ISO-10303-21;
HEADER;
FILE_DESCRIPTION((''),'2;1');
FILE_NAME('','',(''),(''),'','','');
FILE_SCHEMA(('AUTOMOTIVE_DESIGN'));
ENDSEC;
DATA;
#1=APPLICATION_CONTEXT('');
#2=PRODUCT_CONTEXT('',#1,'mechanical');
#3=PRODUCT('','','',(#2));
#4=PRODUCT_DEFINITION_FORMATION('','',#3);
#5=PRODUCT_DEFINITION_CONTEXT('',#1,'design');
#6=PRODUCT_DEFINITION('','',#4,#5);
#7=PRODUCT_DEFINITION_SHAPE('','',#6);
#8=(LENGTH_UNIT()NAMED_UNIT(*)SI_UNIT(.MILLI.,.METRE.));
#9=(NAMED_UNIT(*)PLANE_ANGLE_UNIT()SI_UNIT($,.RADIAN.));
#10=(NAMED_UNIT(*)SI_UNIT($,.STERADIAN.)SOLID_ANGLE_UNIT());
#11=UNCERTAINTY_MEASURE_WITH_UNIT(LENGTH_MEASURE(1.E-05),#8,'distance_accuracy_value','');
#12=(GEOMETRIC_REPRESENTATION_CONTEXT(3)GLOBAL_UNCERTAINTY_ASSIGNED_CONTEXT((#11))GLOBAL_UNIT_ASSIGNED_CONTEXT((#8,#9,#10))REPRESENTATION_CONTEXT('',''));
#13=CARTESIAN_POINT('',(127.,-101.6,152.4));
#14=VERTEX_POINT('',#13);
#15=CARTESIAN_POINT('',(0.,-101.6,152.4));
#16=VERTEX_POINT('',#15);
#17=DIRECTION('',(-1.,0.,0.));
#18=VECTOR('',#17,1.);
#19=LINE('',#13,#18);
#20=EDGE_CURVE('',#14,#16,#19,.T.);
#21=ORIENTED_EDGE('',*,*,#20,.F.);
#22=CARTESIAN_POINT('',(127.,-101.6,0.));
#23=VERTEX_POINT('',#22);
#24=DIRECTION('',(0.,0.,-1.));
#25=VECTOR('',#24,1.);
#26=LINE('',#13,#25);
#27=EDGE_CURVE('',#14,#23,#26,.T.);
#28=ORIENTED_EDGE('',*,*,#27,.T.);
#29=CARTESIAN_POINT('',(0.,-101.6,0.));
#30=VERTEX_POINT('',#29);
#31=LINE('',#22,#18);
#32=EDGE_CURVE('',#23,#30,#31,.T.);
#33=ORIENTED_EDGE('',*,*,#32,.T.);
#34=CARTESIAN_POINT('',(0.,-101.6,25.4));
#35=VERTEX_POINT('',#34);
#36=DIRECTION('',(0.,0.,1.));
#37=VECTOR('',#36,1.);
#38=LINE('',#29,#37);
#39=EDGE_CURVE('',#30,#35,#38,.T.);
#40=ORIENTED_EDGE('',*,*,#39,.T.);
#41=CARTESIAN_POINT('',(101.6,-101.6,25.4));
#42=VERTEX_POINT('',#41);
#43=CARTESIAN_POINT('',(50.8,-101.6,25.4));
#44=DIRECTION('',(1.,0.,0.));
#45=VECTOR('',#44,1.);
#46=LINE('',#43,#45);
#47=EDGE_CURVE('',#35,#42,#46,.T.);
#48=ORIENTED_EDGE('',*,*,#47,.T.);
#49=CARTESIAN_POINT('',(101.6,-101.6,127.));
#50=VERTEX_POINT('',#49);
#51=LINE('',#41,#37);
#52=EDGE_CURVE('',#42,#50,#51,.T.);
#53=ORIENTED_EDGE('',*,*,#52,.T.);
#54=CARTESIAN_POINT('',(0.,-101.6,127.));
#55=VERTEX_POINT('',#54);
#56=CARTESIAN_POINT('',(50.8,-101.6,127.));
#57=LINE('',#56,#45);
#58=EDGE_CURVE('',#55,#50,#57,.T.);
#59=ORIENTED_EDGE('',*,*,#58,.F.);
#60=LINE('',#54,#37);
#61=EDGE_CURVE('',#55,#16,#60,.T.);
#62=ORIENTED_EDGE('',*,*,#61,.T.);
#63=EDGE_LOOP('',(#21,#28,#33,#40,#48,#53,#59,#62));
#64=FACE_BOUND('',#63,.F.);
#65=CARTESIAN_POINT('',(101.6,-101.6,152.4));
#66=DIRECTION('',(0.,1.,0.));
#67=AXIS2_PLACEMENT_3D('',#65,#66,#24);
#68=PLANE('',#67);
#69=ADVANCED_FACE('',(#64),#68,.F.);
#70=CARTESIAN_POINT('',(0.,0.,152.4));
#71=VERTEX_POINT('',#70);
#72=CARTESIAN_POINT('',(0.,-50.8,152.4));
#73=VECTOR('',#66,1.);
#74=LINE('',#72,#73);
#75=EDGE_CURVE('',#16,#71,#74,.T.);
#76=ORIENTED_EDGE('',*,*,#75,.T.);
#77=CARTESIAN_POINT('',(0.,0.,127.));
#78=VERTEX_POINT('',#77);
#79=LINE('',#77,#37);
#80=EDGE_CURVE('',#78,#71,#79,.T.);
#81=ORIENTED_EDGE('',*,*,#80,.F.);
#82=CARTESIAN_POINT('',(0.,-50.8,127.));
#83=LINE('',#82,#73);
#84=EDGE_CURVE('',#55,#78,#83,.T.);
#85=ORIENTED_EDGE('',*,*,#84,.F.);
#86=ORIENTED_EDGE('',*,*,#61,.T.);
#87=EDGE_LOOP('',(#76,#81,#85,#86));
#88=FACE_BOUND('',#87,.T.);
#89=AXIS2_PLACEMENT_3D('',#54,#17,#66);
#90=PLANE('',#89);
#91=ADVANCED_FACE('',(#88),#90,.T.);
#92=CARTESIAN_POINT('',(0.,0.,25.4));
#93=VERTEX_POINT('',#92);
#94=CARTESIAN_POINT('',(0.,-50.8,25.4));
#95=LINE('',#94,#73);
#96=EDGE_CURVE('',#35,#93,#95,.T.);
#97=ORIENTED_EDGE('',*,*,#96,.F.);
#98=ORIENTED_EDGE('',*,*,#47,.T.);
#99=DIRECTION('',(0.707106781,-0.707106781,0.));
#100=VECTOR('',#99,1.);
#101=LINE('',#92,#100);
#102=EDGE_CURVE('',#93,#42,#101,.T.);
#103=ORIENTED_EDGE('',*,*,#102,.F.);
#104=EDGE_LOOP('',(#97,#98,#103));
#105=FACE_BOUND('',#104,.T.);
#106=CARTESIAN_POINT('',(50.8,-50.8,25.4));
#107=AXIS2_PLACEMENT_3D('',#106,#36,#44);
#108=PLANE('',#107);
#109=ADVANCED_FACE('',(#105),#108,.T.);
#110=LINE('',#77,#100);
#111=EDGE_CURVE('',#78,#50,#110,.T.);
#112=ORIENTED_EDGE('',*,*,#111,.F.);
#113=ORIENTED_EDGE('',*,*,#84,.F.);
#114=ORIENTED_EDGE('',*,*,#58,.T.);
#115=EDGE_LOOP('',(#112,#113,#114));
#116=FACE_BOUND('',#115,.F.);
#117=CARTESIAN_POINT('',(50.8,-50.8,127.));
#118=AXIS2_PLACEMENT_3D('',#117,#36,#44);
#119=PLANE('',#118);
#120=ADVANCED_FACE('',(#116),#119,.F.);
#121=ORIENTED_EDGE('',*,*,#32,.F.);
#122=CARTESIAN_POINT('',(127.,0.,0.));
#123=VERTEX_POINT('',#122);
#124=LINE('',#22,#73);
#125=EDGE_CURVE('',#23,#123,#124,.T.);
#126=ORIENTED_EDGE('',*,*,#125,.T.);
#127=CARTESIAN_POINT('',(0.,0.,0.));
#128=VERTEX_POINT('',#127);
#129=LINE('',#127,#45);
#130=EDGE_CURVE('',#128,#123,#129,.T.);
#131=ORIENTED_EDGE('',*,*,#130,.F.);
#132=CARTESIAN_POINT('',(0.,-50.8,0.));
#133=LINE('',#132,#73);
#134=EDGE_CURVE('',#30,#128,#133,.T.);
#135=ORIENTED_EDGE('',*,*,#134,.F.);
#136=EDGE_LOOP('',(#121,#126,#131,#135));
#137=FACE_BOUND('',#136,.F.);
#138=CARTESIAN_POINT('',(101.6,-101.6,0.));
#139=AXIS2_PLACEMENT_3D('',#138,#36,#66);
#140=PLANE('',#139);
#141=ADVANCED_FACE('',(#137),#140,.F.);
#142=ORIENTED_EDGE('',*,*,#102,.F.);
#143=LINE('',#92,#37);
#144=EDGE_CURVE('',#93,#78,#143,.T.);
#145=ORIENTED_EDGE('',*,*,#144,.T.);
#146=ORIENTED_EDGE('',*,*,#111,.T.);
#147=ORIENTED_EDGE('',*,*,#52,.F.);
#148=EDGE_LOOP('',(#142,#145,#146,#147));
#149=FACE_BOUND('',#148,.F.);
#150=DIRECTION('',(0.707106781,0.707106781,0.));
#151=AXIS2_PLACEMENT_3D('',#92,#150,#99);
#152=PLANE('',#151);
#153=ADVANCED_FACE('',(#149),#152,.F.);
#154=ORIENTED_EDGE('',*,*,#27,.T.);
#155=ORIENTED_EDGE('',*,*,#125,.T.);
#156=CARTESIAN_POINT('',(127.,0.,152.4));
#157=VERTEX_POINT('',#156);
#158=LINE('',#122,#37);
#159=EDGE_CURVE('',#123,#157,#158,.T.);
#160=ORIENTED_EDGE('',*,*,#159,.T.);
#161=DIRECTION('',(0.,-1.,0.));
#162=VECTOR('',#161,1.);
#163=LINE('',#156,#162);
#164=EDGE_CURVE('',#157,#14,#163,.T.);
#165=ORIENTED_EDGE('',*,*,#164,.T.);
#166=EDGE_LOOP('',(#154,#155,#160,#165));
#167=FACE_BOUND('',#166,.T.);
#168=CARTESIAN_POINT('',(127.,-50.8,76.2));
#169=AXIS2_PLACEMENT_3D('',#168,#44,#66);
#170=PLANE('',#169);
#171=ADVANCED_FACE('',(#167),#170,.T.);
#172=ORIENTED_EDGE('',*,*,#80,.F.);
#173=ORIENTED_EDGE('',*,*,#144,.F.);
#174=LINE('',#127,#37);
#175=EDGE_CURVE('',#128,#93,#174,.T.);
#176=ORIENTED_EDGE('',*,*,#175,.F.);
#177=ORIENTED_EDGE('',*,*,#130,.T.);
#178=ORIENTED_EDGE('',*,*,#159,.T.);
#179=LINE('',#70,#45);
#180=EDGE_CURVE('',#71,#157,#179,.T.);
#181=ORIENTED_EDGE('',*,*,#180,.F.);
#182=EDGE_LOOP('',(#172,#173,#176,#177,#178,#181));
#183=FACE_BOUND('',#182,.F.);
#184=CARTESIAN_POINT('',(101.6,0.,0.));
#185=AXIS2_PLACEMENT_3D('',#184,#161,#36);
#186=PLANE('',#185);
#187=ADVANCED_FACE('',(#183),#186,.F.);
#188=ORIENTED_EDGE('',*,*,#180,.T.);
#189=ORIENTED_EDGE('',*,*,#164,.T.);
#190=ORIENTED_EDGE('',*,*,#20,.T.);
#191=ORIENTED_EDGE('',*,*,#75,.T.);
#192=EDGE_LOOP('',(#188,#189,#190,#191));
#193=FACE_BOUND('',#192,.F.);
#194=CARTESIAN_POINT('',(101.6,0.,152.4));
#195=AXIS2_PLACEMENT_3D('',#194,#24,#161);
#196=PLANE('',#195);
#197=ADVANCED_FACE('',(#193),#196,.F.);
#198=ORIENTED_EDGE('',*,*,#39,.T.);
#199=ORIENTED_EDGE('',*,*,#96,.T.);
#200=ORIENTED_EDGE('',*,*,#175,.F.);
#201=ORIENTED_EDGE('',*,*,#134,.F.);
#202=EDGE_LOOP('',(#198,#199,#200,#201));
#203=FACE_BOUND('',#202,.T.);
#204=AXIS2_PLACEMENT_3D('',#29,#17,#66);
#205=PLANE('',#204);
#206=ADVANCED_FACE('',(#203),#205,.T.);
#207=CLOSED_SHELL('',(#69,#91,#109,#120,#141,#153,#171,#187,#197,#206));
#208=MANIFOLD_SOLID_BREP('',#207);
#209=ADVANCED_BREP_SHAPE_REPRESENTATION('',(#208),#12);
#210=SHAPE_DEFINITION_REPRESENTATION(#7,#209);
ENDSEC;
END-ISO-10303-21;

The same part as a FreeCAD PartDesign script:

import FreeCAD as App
import Part
import Sketcher
Q = App.Units.Quantity

doc = App.newDocument("Part")
body = doc.addObject("PartDesign::Body", "Body")

sketch1 = doc.addObject("Sketcher::SketchObject", "Sketch")
body.addObject(sketch1)
sketch1.AttachmentSupport = (doc.XY_Plane, [""])
sketch1.MapMode = "FlatFace"
sketch1.addGeometry([
    Part.LineSegment(App.Vector(0, 0, 0), App.Vector(0, -101.6, 0)),
    Part.LineSegment(App.Vector(0, -101.6, 0), App.Vector(101.6, -101.6, 0)),
    Part.LineSegment(App.Vector(101.6, -101.6, 0), App.Vector(101.6, 0, 0)),
    Part.LineSegment(App.Vector(101.6, 0, 0), App.Vector(0, 0, 0)),
], False)
sketch1.addConstraint([
    Sketcher.Constraint("Coincident", 0, 2, 1, 1),
    Sketcher.Constraint("Coincident", 1, 2, 2, 1),
    Sketcher.Constraint("Coincident", 2, 2, 3, 1),
    Sketcher.Constraint("Coincident", 3, 2, 0, 1),
    Sketcher.Constraint("Vertical", 0),
    Sketcher.Constraint("Horizontal", 1),
    Sketcher.Constraint("Vertical", 2),
    Sketcher.Constraint("Horizontal", 3),
    Sketcher.Constraint("Coincident", 3, 2, -1, 1),
    Sketcher.Constraint("Equal", 3, 0),
    Sketcher.Constraint("DistanceX", 1, 1, 1, 2, Q("4 in")),
])
pad1 = doc.addObject("PartDesign::Pad", "Pad")
body.addObject(pad1)
pad1.Profile = sketch1
pad1.Length = Q("1 in")

sketch2 = doc.addObject("Sketcher::SketchObject", "Sketch001")
body.addObject(sketch2)
sketch2.AttachmentSupport = (doc.XY_Plane, [""])
sketch2.MapMode = "FlatFace"
sketch2.AttachmentOffset = App.Placement(App.Vector(0, 0, 1 * 25.4), App.Rotation())
sketch2.addGeometry([
    Part.LineSegment(App.Vector(101.6, 0, 0), App.Vector(0, 0, 0)),
    Part.LineSegment(App.Vector(0, 0, 0), App.Vector(101.6, -101.6, 0)),
    Part.LineSegment(App.Vector(101.6, -101.6, 0), App.Vector(101.6, 0, 0)),
], False)
sketch2.addConstraint([
    Sketcher.Constraint("Coincident", 0, 2, 1, 1),
    Sketcher.Constraint("Coincident", 1, 2, 2, 1),
    Sketcher.Constraint("Coincident", 2, 2, 0, 1),
    Sketcher.Constraint("Horizontal", 0),
    Sketcher.Constraint("Vertical", 2),
    Sketcher.Constraint("Coincident", 0, 2, -1, 1),
    Sketcher.Constraint("Equal", 0, 2),
    Sketcher.Constraint("DistanceX", 0, 2, 0, 1, Q("4 in")),
])
pad2 = doc.addObject("PartDesign::Pad", "Pad001")
body.addObject(pad2)
pad2.Profile = sketch2
pad2.Length = Q("4 in")

sketch3 = doc.addObject("Sketcher::SketchObject", "Sketch002")
body.addObject(sketch3)
sketch3.AttachmentSupport = (doc.XY_Plane, [""])
sketch3.MapMode = "FlatFace"
sketch3.AttachmentOffset = App.Placement(App.Vector(0, 0, 5 * 25.4), App.Rotation())
sketch3.addGeometry([
    Part.LineSegment(App.Vector(0, 0, 0), App.Vector(0, -101.6, 0)),
    Part.LineSegment(App.Vector(0, -101.6, 0), App.Vector(101.6, -101.6, 0)),
    Part.LineSegment(App.Vector(101.6, -101.6, 0), App.Vector(101.6, 0, 0)),
    Part.LineSegment(App.Vector(101.6, 0, 0), App.Vector(0, 0, 0)),
], False)
sketch3.addConstraint([
    Sketcher.Constraint("Coincident", 0, 2, 1, 1),
    Sketcher.Constraint("Coincident", 1, 2, 2, 1),
    Sketcher.Constraint("Coincident", 2, 2, 3, 1),
    Sketcher.Constraint("Coincident", 3, 2, 0, 1),
    Sketcher.Constraint("Vertical", 0),
    Sketcher.Constraint("Horizontal", 1),
    Sketcher.Constraint("Vertical", 2),
    Sketcher.Constraint("Horizontal", 3),
    Sketcher.Constraint("Coincident", 3, 2, -1, 1),
    Sketcher.Constraint("Equal", 3, 0),
    Sketcher.Constraint("DistanceX", 1, 1, 1, 2, Q("4 in")),
])
pad3 = doc.addObject("PartDesign::Pad", "Pad002")
body.addObject(pad3)
pad3.Profile = sketch3
pad3.Length = Q("1 in")

sketch4 = doc.addObject("Sketcher::SketchObject", "Sketch003")
body.addObject(sketch4)
sketch4.AttachmentSupport = (doc.YZ_Plane, [""])
sketch4.MapMode = "FlatFace"
sketch4.AttachmentOffset = App.Placement(App.Vector(0, 0, 4 * 25.4), App.Rotation())
sketch4.addGeometry([
    Part.LineSegment(App.Vector(-101.6, 0, 0), App.Vector(0, 0, 0)),
    Part.LineSegment(App.Vector(0, 0, 0), App.Vector(0, 152.4, 0)),
    Part.LineSegment(App.Vector(0, 152.4, 0), App.Vector(-101.6, 152.4, 0)),
    Part.LineSegment(App.Vector(-101.6, 152.4, 0), App.Vector(-101.6, 0, 0)),
], False)
sketch4.addConstraint([
    Sketcher.Constraint("Coincident", 0, 2, 1, 1),
    Sketcher.Constraint("Coincident", 1, 2, 2, 1),
    Sketcher.Constraint("Coincident", 2, 2, 3, 1),
    Sketcher.Constraint("Coincident", 3, 2, 0, 1),
    Sketcher.Constraint("Horizontal", 0),
    Sketcher.Constraint("Vertical", 1),
    Sketcher.Constraint("Horizontal", 2),
    Sketcher.Constraint("Vertical", 3),
    Sketcher.Constraint("Coincident", 0, 2, -1, 1),
    Sketcher.Constraint("DistanceX", 0, 1, 0, 2, Q("4 in")),
    Sketcher.Constraint("DistanceY", 1, 1, 1, 2, Q("6 in")),
])
pad4 = doc.addObject("PartDesign::Pad", "Pad003")
body.addObject(pad4)
pad4.Profile = sketch4
pad4.Length = Q("1 in")

doc.recompute()
